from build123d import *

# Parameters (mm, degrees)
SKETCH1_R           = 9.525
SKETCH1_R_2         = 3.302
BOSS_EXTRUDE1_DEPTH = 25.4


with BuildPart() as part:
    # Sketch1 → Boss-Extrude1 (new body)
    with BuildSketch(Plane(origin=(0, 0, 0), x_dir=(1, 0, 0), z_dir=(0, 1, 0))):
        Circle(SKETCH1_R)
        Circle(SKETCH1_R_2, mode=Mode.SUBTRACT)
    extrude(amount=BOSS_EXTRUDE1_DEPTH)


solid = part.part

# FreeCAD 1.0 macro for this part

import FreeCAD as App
import Part
import Sketcher
from FreeCAD import Vector
Q = App.Units.Quantity

doc = App.newDocument("Part")
params = doc.addObject("Spreadsheet::Sheet", "Params")
for row, (alias, value) in enumerate([
    ("sketch1_diameter", "0.75 in"),
    ("sketch1_diameter2", "0.26 in"),
    ("pad1_length", "1 in"),
], start=1):
    params.set(f"A{row}", alias)
    params.set(f"B{row}", "=" + value)
    params.setAlias(f"B{row}", alias)

body = doc.addObject("PartDesign::Body", "Body")

# Sketch on XZ plane
sketch1 = doc.addObject("Sketcher::SketchObject", "Sketch")
body.addObject(sketch1)
sketch1.AttachmentSupport = (doc.XZ_Plane, [""])
sketch1.MapMode = "FlatFace"
sketch1.addGeometry(Part.Circle(Vector(0, 0, 0), Vector(0, 0, 1), 9.5), False)
sketch1.addGeometry(Part.Circle(Vector(0, 0, 0), Vector(0, 0, 1), 3.3), False)
sketch1.addConstraint(Sketcher.Constraint("Coincident", 0, 3, -1, 1))
sketch1.addConstraint(Sketcher.Constraint("Coincident", 1, 3, -1, 1))
sketch1.addConstraint(Sketcher.Constraint("Diameter", 0, Q("0.75 in")))
sketch1.addConstraint(Sketcher.Constraint("Diameter", 1, Q("0.26 in")))
sketch1.setExpression("Constraints[2]", "Params.sketch1_diameter")
sketch1.setExpression("Constraints[3]", "Params.sketch1_diameter2")
pad1 = doc.addObject("PartDesign::Pad", "Pad")
body.addObject(pad1)
pad1.Profile = sketch1
pad1.setExpression("Length", "Params.pad1_length")
pad1.Reversed = True

doc.recompute()
